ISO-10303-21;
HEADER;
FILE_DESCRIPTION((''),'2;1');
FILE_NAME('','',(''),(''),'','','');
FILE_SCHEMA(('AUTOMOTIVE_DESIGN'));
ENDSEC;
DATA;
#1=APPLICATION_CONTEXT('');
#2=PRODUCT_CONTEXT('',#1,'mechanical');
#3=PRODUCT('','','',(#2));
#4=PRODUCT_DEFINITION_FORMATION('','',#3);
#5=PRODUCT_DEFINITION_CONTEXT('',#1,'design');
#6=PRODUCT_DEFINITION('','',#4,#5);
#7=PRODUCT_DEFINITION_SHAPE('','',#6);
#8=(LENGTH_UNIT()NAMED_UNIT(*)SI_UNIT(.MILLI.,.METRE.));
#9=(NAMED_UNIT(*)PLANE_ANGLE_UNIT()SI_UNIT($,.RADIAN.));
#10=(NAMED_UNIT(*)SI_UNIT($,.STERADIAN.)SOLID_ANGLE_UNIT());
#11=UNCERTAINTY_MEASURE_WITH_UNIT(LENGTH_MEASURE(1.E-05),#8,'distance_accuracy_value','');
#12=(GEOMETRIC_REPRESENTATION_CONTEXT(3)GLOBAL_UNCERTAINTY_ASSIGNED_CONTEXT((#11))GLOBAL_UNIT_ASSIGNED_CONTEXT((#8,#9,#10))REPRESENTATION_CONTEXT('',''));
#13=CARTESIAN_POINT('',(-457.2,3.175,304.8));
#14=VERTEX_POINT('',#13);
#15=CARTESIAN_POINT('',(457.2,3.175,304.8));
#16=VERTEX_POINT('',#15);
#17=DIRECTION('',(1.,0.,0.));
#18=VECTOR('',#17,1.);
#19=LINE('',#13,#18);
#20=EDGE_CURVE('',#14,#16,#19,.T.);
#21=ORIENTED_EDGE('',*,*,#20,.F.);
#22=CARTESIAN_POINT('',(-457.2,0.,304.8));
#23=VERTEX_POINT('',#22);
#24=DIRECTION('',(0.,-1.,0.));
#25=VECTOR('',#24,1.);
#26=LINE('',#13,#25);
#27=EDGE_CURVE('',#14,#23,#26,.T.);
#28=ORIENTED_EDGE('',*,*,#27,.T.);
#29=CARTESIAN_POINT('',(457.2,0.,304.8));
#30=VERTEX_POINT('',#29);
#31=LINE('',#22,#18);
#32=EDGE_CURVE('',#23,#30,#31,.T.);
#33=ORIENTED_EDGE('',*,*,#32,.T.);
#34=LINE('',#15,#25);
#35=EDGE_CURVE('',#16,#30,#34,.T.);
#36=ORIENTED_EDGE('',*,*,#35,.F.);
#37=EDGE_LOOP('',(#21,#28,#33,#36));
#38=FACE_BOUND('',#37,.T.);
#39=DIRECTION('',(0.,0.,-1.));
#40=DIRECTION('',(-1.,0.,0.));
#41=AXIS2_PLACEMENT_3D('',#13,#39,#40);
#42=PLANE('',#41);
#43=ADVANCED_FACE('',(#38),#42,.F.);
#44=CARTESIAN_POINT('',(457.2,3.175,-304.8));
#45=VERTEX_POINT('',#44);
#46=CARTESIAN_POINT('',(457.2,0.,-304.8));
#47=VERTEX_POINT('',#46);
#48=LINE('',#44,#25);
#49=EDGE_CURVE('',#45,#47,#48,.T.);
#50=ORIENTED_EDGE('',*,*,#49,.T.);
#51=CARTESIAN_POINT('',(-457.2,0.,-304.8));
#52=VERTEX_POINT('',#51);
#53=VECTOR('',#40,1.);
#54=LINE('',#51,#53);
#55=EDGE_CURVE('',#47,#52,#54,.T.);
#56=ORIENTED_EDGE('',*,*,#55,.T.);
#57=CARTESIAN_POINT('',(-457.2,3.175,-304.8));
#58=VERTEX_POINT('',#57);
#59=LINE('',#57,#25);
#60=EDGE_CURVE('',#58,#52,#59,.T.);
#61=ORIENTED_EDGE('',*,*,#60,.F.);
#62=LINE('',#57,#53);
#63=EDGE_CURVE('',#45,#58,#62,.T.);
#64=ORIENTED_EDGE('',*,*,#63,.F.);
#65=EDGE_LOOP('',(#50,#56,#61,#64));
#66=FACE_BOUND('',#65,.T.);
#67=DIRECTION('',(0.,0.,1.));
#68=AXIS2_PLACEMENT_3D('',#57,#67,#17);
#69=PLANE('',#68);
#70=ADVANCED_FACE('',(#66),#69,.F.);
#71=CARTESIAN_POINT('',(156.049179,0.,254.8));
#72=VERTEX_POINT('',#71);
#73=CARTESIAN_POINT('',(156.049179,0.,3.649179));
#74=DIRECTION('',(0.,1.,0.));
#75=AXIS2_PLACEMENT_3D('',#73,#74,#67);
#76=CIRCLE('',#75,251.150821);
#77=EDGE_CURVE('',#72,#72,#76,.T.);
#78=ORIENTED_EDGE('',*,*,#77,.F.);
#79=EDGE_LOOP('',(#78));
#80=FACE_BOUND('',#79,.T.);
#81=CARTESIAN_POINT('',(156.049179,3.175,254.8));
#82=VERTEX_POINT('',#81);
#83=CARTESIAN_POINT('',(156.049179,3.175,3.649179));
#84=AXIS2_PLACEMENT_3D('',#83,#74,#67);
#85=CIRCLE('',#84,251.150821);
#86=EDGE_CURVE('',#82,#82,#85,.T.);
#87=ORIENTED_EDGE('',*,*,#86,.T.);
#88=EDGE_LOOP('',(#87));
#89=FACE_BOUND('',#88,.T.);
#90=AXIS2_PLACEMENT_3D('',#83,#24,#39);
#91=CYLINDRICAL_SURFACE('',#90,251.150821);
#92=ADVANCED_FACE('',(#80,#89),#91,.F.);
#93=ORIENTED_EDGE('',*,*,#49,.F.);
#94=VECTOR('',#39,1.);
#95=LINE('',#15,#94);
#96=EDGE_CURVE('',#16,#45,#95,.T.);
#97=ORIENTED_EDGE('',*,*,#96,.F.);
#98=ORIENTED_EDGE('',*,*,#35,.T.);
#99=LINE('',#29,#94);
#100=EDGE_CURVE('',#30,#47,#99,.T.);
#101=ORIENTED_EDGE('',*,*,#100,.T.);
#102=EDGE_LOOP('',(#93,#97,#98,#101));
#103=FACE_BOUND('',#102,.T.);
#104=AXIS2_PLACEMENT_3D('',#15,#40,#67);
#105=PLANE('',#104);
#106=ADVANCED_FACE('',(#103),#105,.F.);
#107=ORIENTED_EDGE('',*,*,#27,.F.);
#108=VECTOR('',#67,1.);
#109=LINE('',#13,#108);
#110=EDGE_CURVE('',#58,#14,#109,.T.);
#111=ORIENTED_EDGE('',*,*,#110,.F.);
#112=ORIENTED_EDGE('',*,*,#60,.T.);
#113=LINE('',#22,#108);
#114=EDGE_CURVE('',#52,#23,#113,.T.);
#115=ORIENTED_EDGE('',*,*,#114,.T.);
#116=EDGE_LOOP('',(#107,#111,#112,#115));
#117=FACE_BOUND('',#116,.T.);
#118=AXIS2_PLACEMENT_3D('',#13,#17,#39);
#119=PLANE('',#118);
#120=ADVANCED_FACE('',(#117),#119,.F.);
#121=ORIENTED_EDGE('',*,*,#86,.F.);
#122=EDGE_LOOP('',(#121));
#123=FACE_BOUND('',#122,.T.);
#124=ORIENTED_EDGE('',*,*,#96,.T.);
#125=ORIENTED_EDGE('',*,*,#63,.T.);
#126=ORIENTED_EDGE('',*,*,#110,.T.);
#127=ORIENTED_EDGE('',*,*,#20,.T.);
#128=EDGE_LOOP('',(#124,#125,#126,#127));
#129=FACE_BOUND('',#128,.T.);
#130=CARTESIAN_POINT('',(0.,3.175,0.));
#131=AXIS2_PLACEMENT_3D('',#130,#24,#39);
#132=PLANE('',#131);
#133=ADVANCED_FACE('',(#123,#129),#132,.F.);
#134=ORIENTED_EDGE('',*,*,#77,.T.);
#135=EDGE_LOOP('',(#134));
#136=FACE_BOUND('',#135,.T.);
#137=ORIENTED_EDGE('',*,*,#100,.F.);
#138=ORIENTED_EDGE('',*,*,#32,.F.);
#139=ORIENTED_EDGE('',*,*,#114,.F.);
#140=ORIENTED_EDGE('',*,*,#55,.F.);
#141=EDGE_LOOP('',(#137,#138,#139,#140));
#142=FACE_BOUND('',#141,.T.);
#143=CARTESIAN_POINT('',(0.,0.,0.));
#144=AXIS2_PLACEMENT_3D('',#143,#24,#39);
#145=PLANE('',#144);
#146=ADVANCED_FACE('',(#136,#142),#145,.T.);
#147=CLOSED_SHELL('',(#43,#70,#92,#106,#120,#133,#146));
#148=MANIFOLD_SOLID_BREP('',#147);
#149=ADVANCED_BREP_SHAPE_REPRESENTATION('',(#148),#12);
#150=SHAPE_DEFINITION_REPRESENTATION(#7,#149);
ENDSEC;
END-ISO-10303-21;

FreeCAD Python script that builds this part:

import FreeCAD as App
import Part
import Sketcher
Q = App.Units.Quantity


def add_polygon(sketch, points):
    """Adds a closed chain of lines whose ends are joined by coincident constraints."""
    first, n = sketch.GeometryCount, len(points)
    for a, b in zip(points, points[1:] + points[:1]):
        sketch.addGeometry(Part.LineSegment(App.Vector(*a, 0), App.Vector(*b, 0)), False)
    for i in range(n):
        sketch.addConstraint(Sketcher.Constraint("Coincident", first + i, 2, first + (i + 1) % n, 1))

doc = App.newDocument("Part")
body = doc.addObject("PartDesign::Body", "Body")

# Sketch on XZ plane
sketch1 = body.newObject("Sketcher::SketchObject", "Sketch")
sketch1.AttachmentSupport = (doc.getObject("XZ_Plane"), [""])
sketch1.MapMode = "FlatFace"
add_polygon(sketch1, [(-457.2, -304.8), (-457.2, 304.8), (457.2, 304.8), (457.2, -304.8)])  # lines 0-3
sketch1.addGeometry(Part.Circle(App.Vector(156.049179, 3.649179, 0), App.Vector(0, 0, 1), 251.150821), False)  # 4
sketch1.addConstraint([
    Sketcher.Constraint("Vertical", 0),
    Sketcher.Constraint("Horizontal", 1),
    Sketcher.Constraint("Vertical", 2),
    Sketcher.Constraint("Horizontal", 3),
    Sketcher.Constraint("Symmetric", 0, 2, 2, 2, -1, 1),
    Sketcher.Constraint("DistanceX", 1, 1, 1, 2, Q("36 in")),
    Sketcher.Constraint("DistanceY", 0, 1, 0, 2, Q("24 in")),
    Sketcher.Constraint("Diameter", 4, 502.301642),
    Sketcher.Constraint("DistanceX", -1, 1, 4, 3, 156.049179),
    Sketcher.Constraint("DistanceY", -1, 1, 4, 3, 3.649179),
])
pad1 = body.newObject("PartDesign::Pad", "Pad")
pad1.Profile = sketch1
pad1.Length = Q("0.125 in")
pad1.Reversed = True

doc.recompute()
